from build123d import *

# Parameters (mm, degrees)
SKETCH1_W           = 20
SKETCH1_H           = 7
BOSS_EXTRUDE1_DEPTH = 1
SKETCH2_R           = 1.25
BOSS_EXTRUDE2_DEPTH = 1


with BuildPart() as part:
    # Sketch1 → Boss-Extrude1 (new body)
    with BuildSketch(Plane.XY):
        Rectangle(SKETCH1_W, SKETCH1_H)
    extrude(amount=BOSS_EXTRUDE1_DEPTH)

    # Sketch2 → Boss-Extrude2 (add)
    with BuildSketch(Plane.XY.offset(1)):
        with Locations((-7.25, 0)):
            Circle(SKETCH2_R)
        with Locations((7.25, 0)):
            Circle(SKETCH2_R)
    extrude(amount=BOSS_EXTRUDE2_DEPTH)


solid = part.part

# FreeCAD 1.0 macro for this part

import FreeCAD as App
import Part
import Sketcher
from FreeCAD import Vector

doc = App.newDocument("Part")
body = doc.addObject("PartDesign::Body", "Body")

# Sketch on XY plane
sketch1 = doc.addObject("Sketcher::SketchObject", "Sketch")
body.addObject(sketch1)
sketch1.AttachmentSupport = (doc.XY_Plane, [""])
sketch1.MapMode = "FlatFace"
sketch1.addGeometry(Part.LineSegment(Vector(-10, 4, 0), Vector(-10, -4, 0)), False)
sketch1.addGeometry(Part.LineSegment(Vector(-10, -4, 0), Vector(10, -4, 0)), False)
sketch1.addGeometry(Part.LineSegment(Vector(10, -4, 0), Vector(10, 4, 0)), False)
sketch1.addGeometry(Part.LineSegment(Vector(10, 4, 0), Vector(-10, 4, 0)), False)
sketch1.addConstraint(Sketcher.Constraint("Coincident", 0, 2, 1, 1))
sketch1.addConstraint(Sketcher.Constraint("Coincident", 1, 2, 2, 1))
sketch1.addConstraint(Sketcher.Constraint("Coincident", 2, 2, 3, 1))
sketch1.addConstraint(Sketcher.Constraint("Coincident", 3, 2, 0, 1))
sketch1.addConstraint(Sketcher.Constraint("Vertical", 0))
sketch1.addConstraint(Sketcher.Constraint("Horizontal", 1))
sketch1.addConstraint(Sketcher.Constraint("Vertical", 2))
sketch1.addConstraint(Sketcher.Constraint("Horizontal", 3))
sketch1.addConstraint(Sketcher.Constraint("Symmetric", 0, 2, 2, 2, -1, 1))
sketch1.addConstraint(Sketcher.Constraint("DistanceX", 1, 1, 1, 2, 20.0))
sketch1.addConstraint(Sketcher.Constraint("DistanceY", 0, 2, 0, 1, 7.0))
pad1 = doc.addObject("PartDesign::Pad", "Pad")
body.addObject(pad1)
pad1.Profile = sketch1
pad1.Length = 1

# Sketch on XY plane
sketch2 = doc.addObject("Sketcher::SketchObject", "Sketch001")
body.addObject(sketch2)
sketch2.AttachmentSupport = (doc.XY_Plane, [""])
sketch2.MapMode = "FlatFace"
sketch2.AttachmentOffset = App.Placement(Vector(0, 0, 1), App.Rotation())
sketch2.addGeometry(Part.Circle(Vector(-7.2, 0, 0), Vector(0, 0, 1), 1.2), False)
sketch2.addGeometry(Part.Circle(Vector(7.2, 0, 0), Vector(0, 0, 1), 1.2), False)
sketch2.addConstraint(Sketcher.Constraint("Equal", 0, 1))
sketch2.addConstraint(Sketcher.Constraint("Symmetric", 0, 3, 1, 3, -1, 1))
sketch2.addConstraint(Sketcher.Constraint("PointOnObject", 0, 3, -1))
sketch2.addConstraint(Sketcher.Constraint("Diameter", 0, 2.5))
sketch2.addConstraint(Sketcher.Constraint("DistanceX", 0, 3, 1, 3, 14.5))
pad2 = doc.addObject("PartDesign::Pad", "Pad001")
body.addObject(pad2)
pad2.Profile = sketch2
pad2.Length = 1

doc.recompute()
